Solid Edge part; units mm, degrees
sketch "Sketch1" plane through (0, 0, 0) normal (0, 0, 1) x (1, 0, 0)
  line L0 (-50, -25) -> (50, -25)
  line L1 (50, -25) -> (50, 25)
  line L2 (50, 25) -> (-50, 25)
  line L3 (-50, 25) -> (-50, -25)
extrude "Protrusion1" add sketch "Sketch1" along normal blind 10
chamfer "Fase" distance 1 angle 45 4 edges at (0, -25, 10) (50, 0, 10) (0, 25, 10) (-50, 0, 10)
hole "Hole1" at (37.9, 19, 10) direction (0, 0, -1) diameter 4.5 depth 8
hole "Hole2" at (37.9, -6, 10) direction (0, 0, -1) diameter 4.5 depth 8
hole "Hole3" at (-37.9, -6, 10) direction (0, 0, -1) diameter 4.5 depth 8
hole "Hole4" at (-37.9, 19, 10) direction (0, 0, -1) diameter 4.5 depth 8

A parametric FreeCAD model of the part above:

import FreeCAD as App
import Part
import Sketcher
from FreeCAD import Vector


def edges_at(feature, points):
    """Names of the edges that pass closest to the given points."""
    edges = feature.Shape.Edges
    near = lambda p: min(range(len(edges)), key=lambda i: edges[i].distToShape(Part.Vertex(*p))[0])
    return sorted({f"Edge{near(p) + 1}" for p in points})


def add_polygon(sketch, points):
    """Adds a closed chain of lines whose ends are joined by coincident constraints."""
    first, n = sketch.GeometryCount, len(points)
    for a, b in zip(points, points[1:] + points[:1]):
        sketch.addGeometry(Part.LineSegment(App.Vector(*a, 0), App.Vector(*b, 0)), False)
    for i in range(n):
        sketch.addConstraint(Sketcher.Constraint("Coincident", first + i, 2, first + (i + 1) % n, 1))

doc = App.newDocument("Part")
body = doc.addObject("PartDesign::Body", "Body")

# Sketch on XY plane
sketch1 = body.newObject("Sketcher::SketchObject", "Sketch")
sketch1.AttachmentSupport = (doc.getObject("XY_Plane"), [""])
sketch1.MapMode = "FlatFace"
add_polygon(sketch1, [(-50, 25), (-50, -25), (50, -25), (50, 25)])  # lines 0-3
sketch1.addConstraint(Sketcher.Constraint("Vertical", 0))
sketch1.addConstraint(Sketcher.Constraint("Horizontal", 1))
sketch1.addConstraint(Sketcher.Constraint("Vertical", 2))
sketch1.addConstraint(Sketcher.Constraint("Horizontal", 3))
sketch1.addConstraint(Sketcher.Constraint("Symmetric", 0, 2, 2, 2, -1, 1))
sketch1.addConstraint(Sketcher.Constraint("DistanceX", 1, 1, 1, 2, 100.0))
sketch1.addConstraint(Sketcher.Constraint("DistanceY", 0, 2, 0, 1, 50.0))
pad1 = body.newObject("PartDesign::Pad", "Pad")
pad1.Profile = sketch1
pad1.Length = 10
doc.recompute()

chamfer = body.newObject("PartDesign::Chamfer", "Chamfer")
chamfer.Base = (pad1, edges_at(pad1, [
    (0, -25, 10),
    (50, 0, 10),
    (0, 25, 10),
    (-50, 0, 10),
]))
chamfer.Size = 1

# Sketch on XY plane
sketch2 = body.newObject("Sketcher::SketchObject", "Sketch001")
sketch2.AttachmentSupport = (doc.getObject("XY_Plane"), [""])
sketch2.MapMode = "FlatFace"
sketch2.AttachmentOffset = App.Placement(Vector(0, 0, 10), App.Rotation())
sketch2.addGeometry(Part.Circle(Vector(37.9, 19, 0), Vector(0, 0, 1), 2.25), False)
sketch2.addConstraint(Sketcher.Constraint("Diameter", 0, 4.5))
sketch2.addConstraint(Sketcher.Constraint("DistanceY", -1, 1, 0, 3, 19.0))
sketch2.addConstraint(Sketcher.Constraint("DistanceX", -1, 1, 0, 3, 37.9))
doc.recompute()
hole = body.newObject("PartDesign::Hole", "Hole")
hole.Profile = sketch2
hole.ThreadType = "None"
hole.Diameter = 4.5
hole.DepthType = "Dimension"
hole.Depth = 8
hole.DrillPoint = "Flat"

# Sketch on XY plane
sketch3 = body.newObject("Sketcher::SketchObject", "Sketch002")
sketch3.AttachmentSupport = (doc.getObject("XY_Plane"), [""])
sketch3.MapMode = "FlatFace"
sketch3.AttachmentOffset = App.Placement(Vector(0, 0, 10), App.Rotation())
sketch3.addGeometry(Part.Circle(Vector(37.9, -6, 0), Vector(0, 0, 1), 2.25), False)
sketch3.addConstraint(Sketcher.Constraint("Diameter", 0, 4.5))
sketch3.addConstraint(Sketcher.Constraint("DistanceY", 0, 3, -1, 1, 6.0))
sketch3.addConstraint(Sketcher.Constraint("DistanceX", -1, 1, 0, 3, 37.9))
doc.recompute()
hole2 = body.newObject("PartDesign::Hole", "Hole001")
hole2.Profile = sketch3
hole2.ThreadType = "None"
hole2.Diameter = 4.5
hole2.DepthType = "Dimension"
hole2.Depth = 8
hole2.DrillPoint = "Flat"

# Sketch on XY plane
sketch4 = body.newObject("Sketcher::SketchObject", "Sketch003")
sketch4.AttachmentSupport = (doc.getObject("XY_Plane"), [""])
sketch4.MapMode = "FlatFace"
sketch4.AttachmentOffset = App.Placement(Vector(0, 0, 10), App.Rotation())
sketch4.addGeometry(Part.Circle(Vector(-37.9, -6, 0), Vector(0, 0, 1), 2.25), False)
sketch4.addConstraint(Sketcher.Constraint("Diameter", 0, 4.5))
sketch4.addConstraint(Sketcher.Constraint("DistanceY", 0, 3, -1, 1, 6.0))
sketch4.addConstraint(Sketcher.Constraint("DistanceX", 0, 3, -1, 1, 37.9))
doc.recompute()
hole3 = body.newObject("PartDesign::Hole", "Hole002")
hole3.Profile = sketch4
hole3.ThreadType = "None"
hole3.Diameter = 4.5
hole3.DepthType = "Dimension"
hole3.Depth = 8
hole3.DrillPoint = "Flat"

# Sketch on XY plane
sketch5 = body.newObject("Sketcher::SketchObject", "Sketch004")
sketch5.AttachmentSupport = (doc.getObject("XY_Plane"), [""])
sketch5.MapMode = "FlatFace"
sketch5.AttachmentOffset = App.Placement(Vector(0, 0, 10), App.Rotation())
sketch5.addGeometry(Part.Circle(Vector(-37.9, 19, 0), Vector(0, 0, 1), 2.25), False)
sketch5.addConstraint(Sketcher.Constraint("Diameter", 0, 4.5))
sketch5.addConstraint(Sketcher.Constraint("DistanceY", -1, 1, 0, 3, 19.0))
sketch5.addConstraint(Sketcher.Constraint("DistanceX", 0, 3, -1, 1, 37.9))
doc.recompute()
hole4 = body.newObject("PartDesign::Hole", "Hole003")
hole4.Profile = sketch5
hole4.ThreadType = "None"
hole4.Diameter = 4.5
hole4.DepthType = "Dimension"
hole4.Depth = 8
hole4.DrillPoint = "Flat"

doc.recompute()
